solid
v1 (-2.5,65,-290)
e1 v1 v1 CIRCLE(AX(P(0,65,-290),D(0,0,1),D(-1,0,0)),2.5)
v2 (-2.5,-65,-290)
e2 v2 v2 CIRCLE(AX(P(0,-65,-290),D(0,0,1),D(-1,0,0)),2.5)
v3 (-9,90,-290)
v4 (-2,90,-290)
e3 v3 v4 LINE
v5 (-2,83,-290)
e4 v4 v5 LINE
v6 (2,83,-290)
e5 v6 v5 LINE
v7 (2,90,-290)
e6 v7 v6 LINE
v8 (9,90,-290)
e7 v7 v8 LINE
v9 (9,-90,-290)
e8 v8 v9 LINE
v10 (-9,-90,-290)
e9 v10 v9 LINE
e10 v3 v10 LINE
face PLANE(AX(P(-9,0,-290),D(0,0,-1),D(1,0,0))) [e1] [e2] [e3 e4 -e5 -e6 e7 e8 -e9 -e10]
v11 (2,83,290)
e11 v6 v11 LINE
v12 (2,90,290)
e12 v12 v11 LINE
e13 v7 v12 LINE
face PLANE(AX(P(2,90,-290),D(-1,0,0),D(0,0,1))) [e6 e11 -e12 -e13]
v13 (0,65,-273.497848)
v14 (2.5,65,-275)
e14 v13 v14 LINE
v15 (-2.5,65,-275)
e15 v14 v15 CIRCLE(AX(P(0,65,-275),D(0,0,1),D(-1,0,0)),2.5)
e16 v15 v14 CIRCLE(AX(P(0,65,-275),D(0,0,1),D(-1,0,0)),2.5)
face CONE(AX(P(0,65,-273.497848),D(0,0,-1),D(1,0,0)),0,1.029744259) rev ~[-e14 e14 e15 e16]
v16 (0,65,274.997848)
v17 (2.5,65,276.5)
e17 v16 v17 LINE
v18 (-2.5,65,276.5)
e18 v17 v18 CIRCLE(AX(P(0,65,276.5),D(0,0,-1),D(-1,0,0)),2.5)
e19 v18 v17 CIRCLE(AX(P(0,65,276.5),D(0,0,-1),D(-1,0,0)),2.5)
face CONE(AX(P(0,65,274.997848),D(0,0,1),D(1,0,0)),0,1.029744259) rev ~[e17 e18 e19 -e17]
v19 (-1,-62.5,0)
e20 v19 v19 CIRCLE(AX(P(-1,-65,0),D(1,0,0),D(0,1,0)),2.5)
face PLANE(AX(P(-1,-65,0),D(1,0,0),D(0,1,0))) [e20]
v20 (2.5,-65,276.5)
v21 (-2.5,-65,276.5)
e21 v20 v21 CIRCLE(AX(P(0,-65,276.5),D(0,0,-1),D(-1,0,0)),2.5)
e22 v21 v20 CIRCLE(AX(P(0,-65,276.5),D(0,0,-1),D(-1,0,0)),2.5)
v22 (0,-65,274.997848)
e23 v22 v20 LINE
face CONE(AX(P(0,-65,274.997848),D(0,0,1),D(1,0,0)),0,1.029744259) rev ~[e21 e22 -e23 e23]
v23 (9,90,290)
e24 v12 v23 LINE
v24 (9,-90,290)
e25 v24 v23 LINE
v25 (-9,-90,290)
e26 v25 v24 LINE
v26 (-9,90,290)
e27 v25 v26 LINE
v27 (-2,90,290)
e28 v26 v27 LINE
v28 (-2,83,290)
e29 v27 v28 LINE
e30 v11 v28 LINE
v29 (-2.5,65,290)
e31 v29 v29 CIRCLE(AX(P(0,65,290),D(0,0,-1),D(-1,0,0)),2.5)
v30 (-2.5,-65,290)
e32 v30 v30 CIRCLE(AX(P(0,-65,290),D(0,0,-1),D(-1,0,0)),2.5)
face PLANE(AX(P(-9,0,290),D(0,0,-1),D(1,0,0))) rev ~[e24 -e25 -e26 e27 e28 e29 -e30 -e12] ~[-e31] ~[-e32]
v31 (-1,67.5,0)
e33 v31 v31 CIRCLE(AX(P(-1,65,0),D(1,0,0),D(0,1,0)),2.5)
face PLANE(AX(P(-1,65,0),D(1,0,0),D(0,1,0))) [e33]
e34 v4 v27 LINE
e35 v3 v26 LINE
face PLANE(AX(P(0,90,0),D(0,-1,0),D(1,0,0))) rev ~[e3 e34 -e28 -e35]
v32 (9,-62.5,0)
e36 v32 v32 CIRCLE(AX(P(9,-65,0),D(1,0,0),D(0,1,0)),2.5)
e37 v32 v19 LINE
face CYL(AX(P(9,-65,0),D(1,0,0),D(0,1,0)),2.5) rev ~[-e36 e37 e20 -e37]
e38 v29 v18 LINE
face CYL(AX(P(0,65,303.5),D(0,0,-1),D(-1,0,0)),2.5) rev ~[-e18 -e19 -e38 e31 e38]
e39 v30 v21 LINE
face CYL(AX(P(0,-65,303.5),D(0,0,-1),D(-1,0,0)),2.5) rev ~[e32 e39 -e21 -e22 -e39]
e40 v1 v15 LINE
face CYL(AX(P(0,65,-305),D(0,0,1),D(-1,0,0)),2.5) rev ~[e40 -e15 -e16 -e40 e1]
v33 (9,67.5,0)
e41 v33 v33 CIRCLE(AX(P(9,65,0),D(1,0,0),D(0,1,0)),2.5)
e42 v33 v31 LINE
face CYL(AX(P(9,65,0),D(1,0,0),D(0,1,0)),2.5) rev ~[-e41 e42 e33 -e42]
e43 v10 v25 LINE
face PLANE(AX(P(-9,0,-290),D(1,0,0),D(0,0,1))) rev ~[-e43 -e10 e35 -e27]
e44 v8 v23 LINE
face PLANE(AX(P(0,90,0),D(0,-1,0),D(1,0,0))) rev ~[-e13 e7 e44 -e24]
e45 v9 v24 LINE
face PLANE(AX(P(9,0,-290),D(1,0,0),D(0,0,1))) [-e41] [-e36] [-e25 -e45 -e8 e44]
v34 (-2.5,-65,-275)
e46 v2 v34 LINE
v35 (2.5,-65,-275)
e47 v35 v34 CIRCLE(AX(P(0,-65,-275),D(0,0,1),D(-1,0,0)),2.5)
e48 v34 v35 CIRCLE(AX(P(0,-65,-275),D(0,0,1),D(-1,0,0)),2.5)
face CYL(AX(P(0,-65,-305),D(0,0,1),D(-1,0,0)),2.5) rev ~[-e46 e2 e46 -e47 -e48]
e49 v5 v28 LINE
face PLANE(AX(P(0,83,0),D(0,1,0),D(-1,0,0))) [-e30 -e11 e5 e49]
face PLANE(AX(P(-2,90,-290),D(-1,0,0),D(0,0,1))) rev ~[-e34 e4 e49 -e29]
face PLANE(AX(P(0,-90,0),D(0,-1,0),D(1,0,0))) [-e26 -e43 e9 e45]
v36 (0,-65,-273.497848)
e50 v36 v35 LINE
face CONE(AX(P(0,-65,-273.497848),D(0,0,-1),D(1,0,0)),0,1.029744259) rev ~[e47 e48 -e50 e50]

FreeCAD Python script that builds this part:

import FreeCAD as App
import Part
import Sketcher


def add_polygon(sketch, points):
    """Adds a closed chain of lines whose ends are joined by coincident constraints."""
    first, n = sketch.GeometryCount, len(points)
    for a, b in zip(points, points[1:] + points[:1]):
        sketch.addGeometry(Part.LineSegment(App.Vector(*a, 0), App.Vector(*b, 0)), False)
    for i in range(n):
        sketch.addConstraint(Sketcher.Constraint("Coincident", first + i, 2, first + (i + 1) % n, 1))

doc = App.newDocument("Part")
body = doc.addObject("PartDesign::Body", "Body")

# Sketch on XZ plane
sketch1 = doc.addObject("Sketcher::SketchObject", "Sketch")
body.addObject(sketch1)
sketch1.AttachmentSupport = (doc.XZ_Plane, [""])
sketch1.MapMode = "FlatFace"
add_polygon(sketch1, [(-9, 290), (-9, -290), (9, -290), (9, 290)])  # lines 0-3
sketch1.addConstraint([
    Sketcher.Constraint("Vertical", 0),
    Sketcher.Constraint("Horizontal", 1),
    Sketcher.Constraint("Vertical", 2),
    Sketcher.Constraint("Horizontal", 3),
    Sketcher.Constraint("Symmetric", 0, 2, 2, 2, -1, 1),
    Sketcher.Constraint("DistanceX", 1, 1, 1, 2, 18.0),
    Sketcher.Constraint("DistanceY", 0, 2, 0, 1, 580.0),
])
pad1 = doc.addObject("PartDesign::Pad", "Pad")
body.addObject(pad1)
pad1.Profile = sketch1
pad1.Length = 180
pad1.Midplane = True

# Sketch on XY plane
sketch2 = doc.addObject("Sketcher::SketchObject", "Sketch001")
body.addObject(sketch2)
sketch2.AttachmentSupport = (doc.XY_Plane, [""])
sketch2.MapMode = "FlatFace"
sketch2.AttachmentOffset = App.Placement(App.Vector(0, 0, 290), App.Rotation())
sketch2.addGeometry([
    Part.Circle(App.Vector(0, 65, 0), App.Vector(0, 0, 1), 2.5),
    Part.Circle(App.Vector(0, -65, 0), App.Vector(0, 0, 1), 2.5),
], False)
sketch2.addConstraint([
    Sketcher.Constraint("Equal", 0, 1),
    Sketcher.Constraint("Symmetric", 0, 3, 1, 3, -1, 1),
    Sketcher.Constraint("PointOnObject", 0, 3, -2),
    Sketcher.Constraint("Diameter", 0, 5.0),
    Sketcher.Constraint("DistanceY", -1, 1, 0, 3, 65.0),
])
doc.recompute()
hole = doc.addObject("PartDesign::Hole", "Hole")
body.addObject(hole)
hole.Profile = sketch2
hole.ThreadType = "None"
hole.Diameter = 5
hole.DepthType = "Dimension"
hole.Depth = 13.5
hole.DrillPoint = "Angled"
hole.DrillPointAngle = 118

# Sketch on XY plane
sketch3 = doc.addObject("Sketcher::SketchObject", "Sketch002")
body.addObject(sketch3)
sketch3.AttachmentSupport = (doc.XY_Plane, [""])
sketch3.MapMode = "FlatFace"
sketch3.AttachmentOffset = App.Placement(App.Vector(0, 0, -290), App.Rotation())
sketch3.addGeometry([
    Part.Circle(App.Vector(0, -65, 0), App.Vector(0, 0, 1), 2.5),
    Part.Circle(App.Vector(0, 65, 0), App.Vector(0, 0, 1), 2.5),
], False)
sketch3.addConstraint([
    Sketcher.Constraint("Equal", 0, 1),
    Sketcher.Constraint("Symmetric", 0, 3, 1, 3, -1, 1),
    Sketcher.Constraint("PointOnObject", 0, 3, -2),
    Sketcher.Constraint("Diameter", 0, 5.0),
    Sketcher.Constraint("DistanceY", 0, 3, -1, 1, 65.0),
])
doc.recompute()
hole2 = doc.addObject("PartDesign::Hole", "Hole001")
body.addObject(hole2)
hole2.Profile = sketch3
hole2.ThreadType = "None"
hole2.Diameter = 5
hole2.DepthType = "Dimension"
hole2.Depth = 15
hole2.DrillPoint = "Angled"
hole2.DrillPointAngle = 118
hole2.Reversed = True

# Sketch on YZ plane
sketch4 = doc.addObject("Sketcher::SketchObject", "Sketch003")
body.addObject(sketch4)
sketch4.AttachmentSupport = (doc.YZ_Plane, [""])
sketch4.MapMode = "FlatFace"
sketch4.AttachmentOffset = App.Placement(App.Vector(0, 0, 9), App.Rotation())
add_polygon(sketch4, [(-90, 290), (-90, -290), (90, -290), (90, 290)])  # lines 0-3
sketch4.addGeometry(Part.Circle(App.Vector(-60, 0, 0), App.Vector(0, 0, 1), 2.5), False)  # 4
sketch4.addGeometry(Part.Circle(App.Vector(60, 0, 0), App.Vector(0, 0, 1), 2.5), False)  # 5
sketch4.addConstraint([
    Sketcher.Constraint("Vertical", 0),
    Sketcher.Constraint("Horizontal", 1),
    Sketcher.Constraint("Vertical", 2),
    Sketcher.Constraint("Horizontal", 3),
    Sketcher.Constraint("Equal", 4, 5),
    Sketcher.Constraint("Symmetric", 4, 3, 5, 3, -1, 1),
    Sketcher.Constraint("Symmetric", 0, 2, 2, 2, -1, 1),
    Sketcher.Constraint("PointOnObject", 4, 3, -1),
    Sketcher.Constraint("Diameter", 4, 5.0),
    Sketcher.Constraint("DistanceX", 1, 1, 1, 2, 180.0),
    Sketcher.Constraint("DistanceY", 0, 2, 0, 1, 580.0),
    Sketcher.Constraint("DistanceX", 4, 3, -1, 1, 60.0),
])
pocket1 = doc.addObject("PartDesign::Pocket", "Pocket")
body.addObject(pocket1)
pocket1.Profile = sketch4
pocket1.Length = 10
pocket1.Reversed = True

# Sketch on YZ plane
sketch5 = doc.addObject("Sketcher::SketchObject", "Sketch004")
body.addObject(sketch5)
sketch5.AttachmentSupport = (doc.YZ_Plane, [""])
sketch5.MapMode = "FlatFace"
sketch5.AttachmentOffset = App.Placement(App.Vector(0, 0, 9), App.Rotation())
sketch5.addGeometry([
    Part.Circle(App.Vector(-65, 0, 0), App.Vector(0, 0, 1), 2.5),
    Part.Circle(App.Vector(65, 0, 0), App.Vector(0, 0, 1), 2.5),
], False)
sketch5.addConstraint([
    Sketcher.Constraint("Equal", 0, 1),
    Sketcher.Constraint("Symmetric", 0, 3, 1, 3, -1, 1),
    Sketcher.Constraint("PointOnObject", 0, 3, -1),
    Sketcher.Constraint("Diameter", 0, 5.0),
    Sketcher.Constraint("DistanceX", 0, 3, -1, 1, 65.0),
])
pocket2 = doc.addObject("PartDesign::Pocket", "Pocket001")
body.addObject(pocket2)
pocket2.Profile = sketch5
pocket2.Length = 10

# Sketch on XZ plane
sketch6 = doc.addObject("Sketcher::SketchObject", "Sketch005")
body.addObject(sketch6)
sketch6.AttachmentSupport = (doc.XZ_Plane, [""])
sketch6.MapMode = "FlatFace"
sketch6.AttachmentOffset = App.Placement(App.Vector(0, 0, -90), App.Rotation())
add_polygon(sketch6, [(2, 290), (2, -290), (-2, -290), (-2, 290)])  # lines 0-3
sketch6.addConstraint([
    Sketcher.Constraint("Vertical", 0),
    Sketcher.Constraint("Horizontal", 1),
    Sketcher.Constraint("Vertical", 2),
    Sketcher.Constraint("Horizontal", 3),
    Sketcher.Constraint("Symmetric", 0, 2, 2, 2, -1, 1),
    Sketcher.Constraint("DistanceX", 1, 2, 1, 1, 4.0),
    Sketcher.Constraint("DistanceY", 0, 2, 0, 1, 580.0),
])
pocket3 = doc.addObject("PartDesign::Pocket", "Pocket002")
body.addObject(pocket3)
pocket3.Profile = sketch6
pocket3.Length = 7
pocket3.Reversed = True

doc.recompute()
